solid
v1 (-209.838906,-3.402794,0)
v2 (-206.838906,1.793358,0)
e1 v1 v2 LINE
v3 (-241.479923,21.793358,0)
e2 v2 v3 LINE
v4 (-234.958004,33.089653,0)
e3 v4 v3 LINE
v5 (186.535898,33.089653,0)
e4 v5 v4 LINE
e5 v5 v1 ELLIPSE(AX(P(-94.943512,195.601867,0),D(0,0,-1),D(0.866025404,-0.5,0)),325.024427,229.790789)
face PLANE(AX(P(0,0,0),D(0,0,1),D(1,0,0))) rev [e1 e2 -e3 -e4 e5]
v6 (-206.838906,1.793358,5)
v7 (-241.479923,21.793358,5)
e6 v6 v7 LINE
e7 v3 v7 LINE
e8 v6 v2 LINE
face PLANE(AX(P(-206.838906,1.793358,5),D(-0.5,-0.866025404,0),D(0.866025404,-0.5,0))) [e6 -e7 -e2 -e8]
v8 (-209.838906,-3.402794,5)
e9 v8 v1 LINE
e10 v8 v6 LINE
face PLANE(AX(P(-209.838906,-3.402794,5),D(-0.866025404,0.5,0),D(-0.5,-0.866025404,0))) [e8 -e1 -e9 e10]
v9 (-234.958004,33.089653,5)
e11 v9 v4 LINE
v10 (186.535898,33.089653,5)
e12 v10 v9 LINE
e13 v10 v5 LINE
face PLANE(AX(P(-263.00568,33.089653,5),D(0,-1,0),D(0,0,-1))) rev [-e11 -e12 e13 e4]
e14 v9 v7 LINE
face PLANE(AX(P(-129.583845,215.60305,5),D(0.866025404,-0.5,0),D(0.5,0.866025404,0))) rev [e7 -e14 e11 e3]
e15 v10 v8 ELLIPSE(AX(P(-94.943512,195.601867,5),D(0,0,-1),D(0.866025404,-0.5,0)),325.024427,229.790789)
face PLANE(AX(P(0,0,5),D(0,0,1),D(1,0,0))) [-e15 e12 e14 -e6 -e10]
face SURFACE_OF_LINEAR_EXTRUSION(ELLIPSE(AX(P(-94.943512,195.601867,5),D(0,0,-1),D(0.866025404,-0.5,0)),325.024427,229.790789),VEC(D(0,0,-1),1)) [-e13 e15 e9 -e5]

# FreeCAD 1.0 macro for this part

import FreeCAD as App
import Part
import Sketcher
from FreeCAD import Vector
Q = App.Units.Quantity


def add_polygon(sketch, points):
    """Adds a closed chain of lines whose ends are joined by coincident constraints."""
    first, n = sketch.GeometryCount, len(points)
    for a, b in zip(points, points[1:] + points[:1]):
        sketch.addGeometry(Part.LineSegment(App.Vector(*a, 0), App.Vector(*b, 0)), False)
    for i in range(n):
        sketch.addConstraint(Sketcher.Constraint("Coincident", first + i, 2, first + (i + 1) % n, 1))

doc = App.newDocument("Part")
params = doc.addObject("Spreadsheet::Sheet", "Params")
for row, (alias, value) in enumerate([
    ("sketch1_length", "5.02 mm"),
    ("pad1_length", "5 mm"),
    ("sketch2_length", "6 mm"),
    ("sketch2_length2", "64.29 mm"),
    ("sketch3_height", "5 mm"),
    ("pocket2_length", "13.043838 mm"),
], start=1):
    params.set(f"A{row}", alias)
    params.set(f"B{row}", "=" + value)
    params.setAlias(f"B{row}", alias)

body = doc.addObject("PartDesign::Body", "Body")

# Sketch on XY plane
sketch1 = body.newObject("Sketcher::SketchObject", "Sketch")
sketch1.AttachmentSupport = (doc.getObject("XY_Plane"), [""])
sketch1.MapMode = "FlatFace"
add_polygon(sketch1, [(-100, -67), (129, -67), (187, 33), (-263, 33), (-266, 29)])  # lines 0-4
sketch1.addConstraint([
    Sketcher.Constraint("Horizontal", 0),
    Sketcher.Constraint("Horizontal", 2),
    Sketcher.Constraint("Parallel", 1, 3),
    Sketcher.Constraint("Perpendicular", 3, 4),
    Sketcher.Constraint("Angle", 1, Q("60 deg")),
    Sketcher.Constraint("DistanceY", 0, 2, 1, 2, Q("100 mm")),
    Sketcher.Constraint("Distance", 3, Q("5.02 mm")),
    Sketcher.Constraint("DistanceX", 0, 1, 0, 2, Q("228.64147 mm")),
    Sketcher.Constraint("DistanceX", -1, 1, 1, 2, Q("186.535898 mm")),
    Sketcher.Constraint("DistanceY", 0, 2, -1, 1, Q("66.910347 mm")),
])
sketch1.setExpression("Constraints[11]", "Params.sketch1_length")
pad1 = body.newObject("PartDesign::Pad", "Pad")
pad1.Profile = sketch1
pad1.setExpression("Length", "Params.pad1_length")

# Sketch on XY plane
sketch2 = body.newObject("Sketcher::SketchObject", "Sketch001")
sketch2.AttachmentSupport = (doc.getObject("XY_Plane"), [""])
sketch2.MapMode = "FlatFace"
add_polygon(sketch2, [(-266, 29), (-210, -3), (-207, 2), (-263, 34)])  # lines 0-3
sketch2.addConstraint([
    Sketcher.Constraint("Perpendicular", 0, 1),
    Sketcher.Constraint("Perpendicular", 1, 2),
    Sketcher.Constraint("Perpendicular", 2, 3),
    Sketcher.Constraint("Angle", 0, Q("-30 deg")),
    Sketcher.Constraint("Distance", 1, Q("6 mm")),
    Sketcher.Constraint("Distance", 0, Q("64.29 mm")),
    Sketcher.Constraint("DistanceY", -1, 1, 1, 2, Q("1.793358 mm")),
    Sketcher.Constraint("DistanceX", 2, 2, -1, 1, Q("262.51568 mm")),
])
sketch2.setExpression("Constraints[8]", "Params.sketch2_length")
sketch2.setExpression("Constraints[9]", "Params.sketch2_length2")
pocket1 = body.newObject("PartDesign::Pocket", "Pocket")
pocket1.Profile = sketch2
pocket1.Type = "ThroughAll"
pocket1.Reversed = True

# Sketch on an angled plane
sketch3 = body.newObject("Sketcher::SketchObject", "Sketch002")
sketch3.Placement = App.Placement(Vector(-50.93318, -88.218855, 0), App.Rotation(Vector(0.866025404, -0.5, 0), Vector(0, 0, 1), Vector(-0.5, -0.866025404, 0), "ZXY"))
add_polygon(sketch3, [(-243, 5), (-243, 0), (-220, 0), (-220, 5)])  # lines 0-3
sketch3.addConstraint([
    Sketcher.Constraint("Vertical", 0),
    Sketcher.Constraint("Horizontal", 1),
    Sketcher.Constraint("Vertical", 2),
    Sketcher.Constraint("Horizontal", 3),
    Sketcher.Constraint("PointOnObject", 0, 2, -1),
    Sketcher.Constraint("DistanceY", 0, 2, 0, 1, Q("5 mm")),
    Sketcher.Constraint("DistanceX", 1, 1, 1, 2, Q("22.59259 mm")),
    Sketcher.Constraint("DistanceX", 0, 2, -1, 1, Q("242.617017 mm")),
])
sketch3.setExpression("Constraints[9]", "Params.sketch3_height")
pocket2 = body.newObject("PartDesign::Pocket", "Pocket001")
pocket2.Profile = sketch3
pocket2.setExpression("Length", "Params.pocket2_length")

# Sketch on XY plane
sketch4 = body.newObject("Sketcher::SketchObject", "Sketch003")
sketch4.AttachmentSupport = (doc.getObject("XY_Plane"), [""])
sketch4.MapMode = "FlatFace"
sketch4.addGeometry([
    Part.LineSegment(Vector(-209.838906, -3.402794, 0), Vector(71.640504, -165.915007, 0)),
    Part.LineSegment(Vector(71.640504, -165.915007, 0), Vector(186.535898, 33.089653, 0)),
    Part.BSplineCurve([Vector(-209.838906, -3.402794, 0), Vector(71.640504, -165.915007, 0), Vector(186.535898, 33.089653, 0)], [3, 3], [4.71238898, 6.283185307], False, 2, [1, 0.707106781, 1], False),
], False)
sketch4.addConstraint([
    Sketcher.Constraint("Block", 2),
    Sketcher.Constraint("Coincident", 0, 2, 1, 1),
    Sketcher.Constraint("Coincident", 1, 2, 2, 2),
    Sketcher.Constraint("Coincident", 2, 1, 0, 1),
    Sketcher.Constraint("Distance", 1, Q("229.790789 mm")),
    Sketcher.Constraint("DistanceY", 0, 2, 1, 2, Q("199.004661 mm")),
])
pocket3 = body.newObject("PartDesign::Pocket", "Pocket002")
pocket3.Profile = sketch4
pocket3.Type = "ThroughAll"
pocket3.Reversed = True

doc.recompute()
